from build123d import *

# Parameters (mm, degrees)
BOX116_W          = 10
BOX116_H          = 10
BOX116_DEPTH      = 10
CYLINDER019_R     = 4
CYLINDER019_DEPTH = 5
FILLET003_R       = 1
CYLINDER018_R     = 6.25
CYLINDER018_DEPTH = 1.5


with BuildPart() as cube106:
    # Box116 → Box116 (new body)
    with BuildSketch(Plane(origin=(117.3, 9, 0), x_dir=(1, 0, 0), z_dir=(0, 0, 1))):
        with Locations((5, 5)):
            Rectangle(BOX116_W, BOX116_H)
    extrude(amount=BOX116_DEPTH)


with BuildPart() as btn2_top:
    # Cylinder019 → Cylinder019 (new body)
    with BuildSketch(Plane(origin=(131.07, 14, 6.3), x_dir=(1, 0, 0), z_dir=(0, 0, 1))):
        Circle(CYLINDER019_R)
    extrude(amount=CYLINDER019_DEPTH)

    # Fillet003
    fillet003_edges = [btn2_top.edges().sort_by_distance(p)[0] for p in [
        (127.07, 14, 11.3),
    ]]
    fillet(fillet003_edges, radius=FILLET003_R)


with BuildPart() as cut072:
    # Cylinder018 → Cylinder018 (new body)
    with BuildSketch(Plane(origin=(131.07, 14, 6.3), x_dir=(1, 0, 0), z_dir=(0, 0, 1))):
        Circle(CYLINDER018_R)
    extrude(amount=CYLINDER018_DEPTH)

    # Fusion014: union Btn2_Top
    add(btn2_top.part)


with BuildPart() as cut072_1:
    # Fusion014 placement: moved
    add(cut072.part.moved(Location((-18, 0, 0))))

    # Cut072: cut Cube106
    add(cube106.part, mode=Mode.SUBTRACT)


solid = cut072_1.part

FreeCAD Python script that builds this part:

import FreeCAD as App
import Part
import Sketcher
from FreeCAD import Vector


def edges_at(feature, points):
    """Names of the edges that pass closest to the given points."""
    edges = feature.Shape.Edges
    near = lambda p: min(range(len(edges)), key=lambda i: edges[i].distToShape(Part.Vertex(*p))[0])
    return sorted({f"Edge{near(p) + 1}" for p in points})

doc = App.newDocument("Part")
body = doc.addObject("PartDesign::Body", "Body")

# Sketch on XY plane
sketch1 = body.newObject("Sketcher::SketchObject", "Sketch")
sketch1.AttachmentSupport = (doc.getObject("XY_Plane"), [""])
sketch1.MapMode = "FlatFace"
sketch1.addGeometry([
    Part.LineSegment(Vector(117, 19, 0), Vector(117, 9, 0)),
    Part.LineSegment(Vector(117, 9, 0), Vector(127, 9, 0)),
    Part.LineSegment(Vector(127, 9, 0), Vector(127, 19, 0)),
    Part.LineSegment(Vector(127, 19, 0), Vector(117, 19, 0)),
], False)
sketch1.addConstraint([
    Sketcher.Constraint("Coincident", 0, 2, 1, 1),
    Sketcher.Constraint("Coincident", 1, 2, 2, 1),
    Sketcher.Constraint("Coincident", 2, 2, 3, 1),
    Sketcher.Constraint("Coincident", 3, 2, 0, 1),
    Sketcher.Constraint("Vertical", 0),
    Sketcher.Constraint("Horizontal", 1),
    Sketcher.Constraint("Vertical", 2),
    Sketcher.Constraint("Horizontal", 3),
    Sketcher.Constraint("Equal", 3, 0),
    Sketcher.Constraint("DistanceX", 1, 1, 1, 2, 10.0),
    Sketcher.Constraint("DistanceY", -1, 1, 0, 2, 9.0),
    Sketcher.Constraint("DistanceX", -1, 1, 0, 2, 117.3),
])
pad1 = body.newObject("PartDesign::Pad", "Pad")
pad1.Profile = sketch1
pad1.Length = 10
body2 = doc.addObject("PartDesign::Body", "Body001")

# Sketch on XY plane
sketch2 = body2.newObject("Sketcher::SketchObject", "Sketch001")
sketch2.AttachmentSupport = (doc.getObject("XY_Plane001"), [""])
sketch2.MapMode = "FlatFace"
sketch2.AttachmentOffset = App.Placement(Vector(0, 0, 6.3), App.Rotation())
sketch2.addGeometry(Part.Circle(Vector(131.1, 14, 0), Vector(0, 0, 1), 4), False)
sketch2.addConstraint([
    Sketcher.Constraint("Diameter", 0, 8.0),
    Sketcher.Constraint("DistanceY", -1, 1, 0, 3, 14.0),
    Sketcher.Constraint("DistanceX", -1, 1, 0, 3, 131.07),
])
pad2 = body2.newObject("PartDesign::Pad", "Pad001")
pad2.Profile = sketch2
pad2.Length = 5
doc.recompute()

fillet = body2.newObject("PartDesign::Fillet", "Fillet")
fillet.Base = (pad2, edges_at(pad2, [(127.07, 14, 11.3)]))
fillet.Radius = 1
body3 = doc.addObject("PartDesign::Body", "Body002")

# Sketch on XY plane
sketch3 = body3.newObject("Sketcher::SketchObject", "Sketch002")
sketch3.AttachmentSupport = (doc.getObject("XY_Plane002"), [""])
sketch3.MapMode = "FlatFace"
sketch3.AttachmentOffset = App.Placement(Vector(0, 0, 6.3), App.Rotation())
sketch3.addGeometry(Part.Circle(Vector(131, 14, 0), Vector(0, 0, 1), 6), False)
sketch3.addConstraint([
    Sketcher.Constraint("Diameter", 0, 12.5),
    Sketcher.Constraint("DistanceY", -1, 1, 0, 3, 14.0),
    Sketcher.Constraint("DistanceX", -1, 1, 0, 3, 131.07),
])
pad3 = body3.newObject("PartDesign::Pad", "Pad002")
pad3.Profile = sketch3
pad3.Length = 1.5
doc.recompute()

boolean = body3.newObject("PartDesign::Boolean", "Boolean")
boolean.Type = "Fuse"
boolean.addObjects([body2])
body4 = doc.addObject("PartDesign::Body", "Body003")
doc.recompute()

body3.Placement = App.Placement(Vector(-18, 0, 0), App.Rotation(Vector(0, 0, 1), 0))
boolean2 = body4.newObject("PartDesign::Boolean", "Boolean001")
boolean2.Type = "Fuse"
boolean2.addObjects([body3])
doc.recompute()

boolean3 = body4.newObject("PartDesign::Boolean", "Boolean002")
boolean3.Type = "Cut"
boolean3.addObjects([body])

doc.recompute()
